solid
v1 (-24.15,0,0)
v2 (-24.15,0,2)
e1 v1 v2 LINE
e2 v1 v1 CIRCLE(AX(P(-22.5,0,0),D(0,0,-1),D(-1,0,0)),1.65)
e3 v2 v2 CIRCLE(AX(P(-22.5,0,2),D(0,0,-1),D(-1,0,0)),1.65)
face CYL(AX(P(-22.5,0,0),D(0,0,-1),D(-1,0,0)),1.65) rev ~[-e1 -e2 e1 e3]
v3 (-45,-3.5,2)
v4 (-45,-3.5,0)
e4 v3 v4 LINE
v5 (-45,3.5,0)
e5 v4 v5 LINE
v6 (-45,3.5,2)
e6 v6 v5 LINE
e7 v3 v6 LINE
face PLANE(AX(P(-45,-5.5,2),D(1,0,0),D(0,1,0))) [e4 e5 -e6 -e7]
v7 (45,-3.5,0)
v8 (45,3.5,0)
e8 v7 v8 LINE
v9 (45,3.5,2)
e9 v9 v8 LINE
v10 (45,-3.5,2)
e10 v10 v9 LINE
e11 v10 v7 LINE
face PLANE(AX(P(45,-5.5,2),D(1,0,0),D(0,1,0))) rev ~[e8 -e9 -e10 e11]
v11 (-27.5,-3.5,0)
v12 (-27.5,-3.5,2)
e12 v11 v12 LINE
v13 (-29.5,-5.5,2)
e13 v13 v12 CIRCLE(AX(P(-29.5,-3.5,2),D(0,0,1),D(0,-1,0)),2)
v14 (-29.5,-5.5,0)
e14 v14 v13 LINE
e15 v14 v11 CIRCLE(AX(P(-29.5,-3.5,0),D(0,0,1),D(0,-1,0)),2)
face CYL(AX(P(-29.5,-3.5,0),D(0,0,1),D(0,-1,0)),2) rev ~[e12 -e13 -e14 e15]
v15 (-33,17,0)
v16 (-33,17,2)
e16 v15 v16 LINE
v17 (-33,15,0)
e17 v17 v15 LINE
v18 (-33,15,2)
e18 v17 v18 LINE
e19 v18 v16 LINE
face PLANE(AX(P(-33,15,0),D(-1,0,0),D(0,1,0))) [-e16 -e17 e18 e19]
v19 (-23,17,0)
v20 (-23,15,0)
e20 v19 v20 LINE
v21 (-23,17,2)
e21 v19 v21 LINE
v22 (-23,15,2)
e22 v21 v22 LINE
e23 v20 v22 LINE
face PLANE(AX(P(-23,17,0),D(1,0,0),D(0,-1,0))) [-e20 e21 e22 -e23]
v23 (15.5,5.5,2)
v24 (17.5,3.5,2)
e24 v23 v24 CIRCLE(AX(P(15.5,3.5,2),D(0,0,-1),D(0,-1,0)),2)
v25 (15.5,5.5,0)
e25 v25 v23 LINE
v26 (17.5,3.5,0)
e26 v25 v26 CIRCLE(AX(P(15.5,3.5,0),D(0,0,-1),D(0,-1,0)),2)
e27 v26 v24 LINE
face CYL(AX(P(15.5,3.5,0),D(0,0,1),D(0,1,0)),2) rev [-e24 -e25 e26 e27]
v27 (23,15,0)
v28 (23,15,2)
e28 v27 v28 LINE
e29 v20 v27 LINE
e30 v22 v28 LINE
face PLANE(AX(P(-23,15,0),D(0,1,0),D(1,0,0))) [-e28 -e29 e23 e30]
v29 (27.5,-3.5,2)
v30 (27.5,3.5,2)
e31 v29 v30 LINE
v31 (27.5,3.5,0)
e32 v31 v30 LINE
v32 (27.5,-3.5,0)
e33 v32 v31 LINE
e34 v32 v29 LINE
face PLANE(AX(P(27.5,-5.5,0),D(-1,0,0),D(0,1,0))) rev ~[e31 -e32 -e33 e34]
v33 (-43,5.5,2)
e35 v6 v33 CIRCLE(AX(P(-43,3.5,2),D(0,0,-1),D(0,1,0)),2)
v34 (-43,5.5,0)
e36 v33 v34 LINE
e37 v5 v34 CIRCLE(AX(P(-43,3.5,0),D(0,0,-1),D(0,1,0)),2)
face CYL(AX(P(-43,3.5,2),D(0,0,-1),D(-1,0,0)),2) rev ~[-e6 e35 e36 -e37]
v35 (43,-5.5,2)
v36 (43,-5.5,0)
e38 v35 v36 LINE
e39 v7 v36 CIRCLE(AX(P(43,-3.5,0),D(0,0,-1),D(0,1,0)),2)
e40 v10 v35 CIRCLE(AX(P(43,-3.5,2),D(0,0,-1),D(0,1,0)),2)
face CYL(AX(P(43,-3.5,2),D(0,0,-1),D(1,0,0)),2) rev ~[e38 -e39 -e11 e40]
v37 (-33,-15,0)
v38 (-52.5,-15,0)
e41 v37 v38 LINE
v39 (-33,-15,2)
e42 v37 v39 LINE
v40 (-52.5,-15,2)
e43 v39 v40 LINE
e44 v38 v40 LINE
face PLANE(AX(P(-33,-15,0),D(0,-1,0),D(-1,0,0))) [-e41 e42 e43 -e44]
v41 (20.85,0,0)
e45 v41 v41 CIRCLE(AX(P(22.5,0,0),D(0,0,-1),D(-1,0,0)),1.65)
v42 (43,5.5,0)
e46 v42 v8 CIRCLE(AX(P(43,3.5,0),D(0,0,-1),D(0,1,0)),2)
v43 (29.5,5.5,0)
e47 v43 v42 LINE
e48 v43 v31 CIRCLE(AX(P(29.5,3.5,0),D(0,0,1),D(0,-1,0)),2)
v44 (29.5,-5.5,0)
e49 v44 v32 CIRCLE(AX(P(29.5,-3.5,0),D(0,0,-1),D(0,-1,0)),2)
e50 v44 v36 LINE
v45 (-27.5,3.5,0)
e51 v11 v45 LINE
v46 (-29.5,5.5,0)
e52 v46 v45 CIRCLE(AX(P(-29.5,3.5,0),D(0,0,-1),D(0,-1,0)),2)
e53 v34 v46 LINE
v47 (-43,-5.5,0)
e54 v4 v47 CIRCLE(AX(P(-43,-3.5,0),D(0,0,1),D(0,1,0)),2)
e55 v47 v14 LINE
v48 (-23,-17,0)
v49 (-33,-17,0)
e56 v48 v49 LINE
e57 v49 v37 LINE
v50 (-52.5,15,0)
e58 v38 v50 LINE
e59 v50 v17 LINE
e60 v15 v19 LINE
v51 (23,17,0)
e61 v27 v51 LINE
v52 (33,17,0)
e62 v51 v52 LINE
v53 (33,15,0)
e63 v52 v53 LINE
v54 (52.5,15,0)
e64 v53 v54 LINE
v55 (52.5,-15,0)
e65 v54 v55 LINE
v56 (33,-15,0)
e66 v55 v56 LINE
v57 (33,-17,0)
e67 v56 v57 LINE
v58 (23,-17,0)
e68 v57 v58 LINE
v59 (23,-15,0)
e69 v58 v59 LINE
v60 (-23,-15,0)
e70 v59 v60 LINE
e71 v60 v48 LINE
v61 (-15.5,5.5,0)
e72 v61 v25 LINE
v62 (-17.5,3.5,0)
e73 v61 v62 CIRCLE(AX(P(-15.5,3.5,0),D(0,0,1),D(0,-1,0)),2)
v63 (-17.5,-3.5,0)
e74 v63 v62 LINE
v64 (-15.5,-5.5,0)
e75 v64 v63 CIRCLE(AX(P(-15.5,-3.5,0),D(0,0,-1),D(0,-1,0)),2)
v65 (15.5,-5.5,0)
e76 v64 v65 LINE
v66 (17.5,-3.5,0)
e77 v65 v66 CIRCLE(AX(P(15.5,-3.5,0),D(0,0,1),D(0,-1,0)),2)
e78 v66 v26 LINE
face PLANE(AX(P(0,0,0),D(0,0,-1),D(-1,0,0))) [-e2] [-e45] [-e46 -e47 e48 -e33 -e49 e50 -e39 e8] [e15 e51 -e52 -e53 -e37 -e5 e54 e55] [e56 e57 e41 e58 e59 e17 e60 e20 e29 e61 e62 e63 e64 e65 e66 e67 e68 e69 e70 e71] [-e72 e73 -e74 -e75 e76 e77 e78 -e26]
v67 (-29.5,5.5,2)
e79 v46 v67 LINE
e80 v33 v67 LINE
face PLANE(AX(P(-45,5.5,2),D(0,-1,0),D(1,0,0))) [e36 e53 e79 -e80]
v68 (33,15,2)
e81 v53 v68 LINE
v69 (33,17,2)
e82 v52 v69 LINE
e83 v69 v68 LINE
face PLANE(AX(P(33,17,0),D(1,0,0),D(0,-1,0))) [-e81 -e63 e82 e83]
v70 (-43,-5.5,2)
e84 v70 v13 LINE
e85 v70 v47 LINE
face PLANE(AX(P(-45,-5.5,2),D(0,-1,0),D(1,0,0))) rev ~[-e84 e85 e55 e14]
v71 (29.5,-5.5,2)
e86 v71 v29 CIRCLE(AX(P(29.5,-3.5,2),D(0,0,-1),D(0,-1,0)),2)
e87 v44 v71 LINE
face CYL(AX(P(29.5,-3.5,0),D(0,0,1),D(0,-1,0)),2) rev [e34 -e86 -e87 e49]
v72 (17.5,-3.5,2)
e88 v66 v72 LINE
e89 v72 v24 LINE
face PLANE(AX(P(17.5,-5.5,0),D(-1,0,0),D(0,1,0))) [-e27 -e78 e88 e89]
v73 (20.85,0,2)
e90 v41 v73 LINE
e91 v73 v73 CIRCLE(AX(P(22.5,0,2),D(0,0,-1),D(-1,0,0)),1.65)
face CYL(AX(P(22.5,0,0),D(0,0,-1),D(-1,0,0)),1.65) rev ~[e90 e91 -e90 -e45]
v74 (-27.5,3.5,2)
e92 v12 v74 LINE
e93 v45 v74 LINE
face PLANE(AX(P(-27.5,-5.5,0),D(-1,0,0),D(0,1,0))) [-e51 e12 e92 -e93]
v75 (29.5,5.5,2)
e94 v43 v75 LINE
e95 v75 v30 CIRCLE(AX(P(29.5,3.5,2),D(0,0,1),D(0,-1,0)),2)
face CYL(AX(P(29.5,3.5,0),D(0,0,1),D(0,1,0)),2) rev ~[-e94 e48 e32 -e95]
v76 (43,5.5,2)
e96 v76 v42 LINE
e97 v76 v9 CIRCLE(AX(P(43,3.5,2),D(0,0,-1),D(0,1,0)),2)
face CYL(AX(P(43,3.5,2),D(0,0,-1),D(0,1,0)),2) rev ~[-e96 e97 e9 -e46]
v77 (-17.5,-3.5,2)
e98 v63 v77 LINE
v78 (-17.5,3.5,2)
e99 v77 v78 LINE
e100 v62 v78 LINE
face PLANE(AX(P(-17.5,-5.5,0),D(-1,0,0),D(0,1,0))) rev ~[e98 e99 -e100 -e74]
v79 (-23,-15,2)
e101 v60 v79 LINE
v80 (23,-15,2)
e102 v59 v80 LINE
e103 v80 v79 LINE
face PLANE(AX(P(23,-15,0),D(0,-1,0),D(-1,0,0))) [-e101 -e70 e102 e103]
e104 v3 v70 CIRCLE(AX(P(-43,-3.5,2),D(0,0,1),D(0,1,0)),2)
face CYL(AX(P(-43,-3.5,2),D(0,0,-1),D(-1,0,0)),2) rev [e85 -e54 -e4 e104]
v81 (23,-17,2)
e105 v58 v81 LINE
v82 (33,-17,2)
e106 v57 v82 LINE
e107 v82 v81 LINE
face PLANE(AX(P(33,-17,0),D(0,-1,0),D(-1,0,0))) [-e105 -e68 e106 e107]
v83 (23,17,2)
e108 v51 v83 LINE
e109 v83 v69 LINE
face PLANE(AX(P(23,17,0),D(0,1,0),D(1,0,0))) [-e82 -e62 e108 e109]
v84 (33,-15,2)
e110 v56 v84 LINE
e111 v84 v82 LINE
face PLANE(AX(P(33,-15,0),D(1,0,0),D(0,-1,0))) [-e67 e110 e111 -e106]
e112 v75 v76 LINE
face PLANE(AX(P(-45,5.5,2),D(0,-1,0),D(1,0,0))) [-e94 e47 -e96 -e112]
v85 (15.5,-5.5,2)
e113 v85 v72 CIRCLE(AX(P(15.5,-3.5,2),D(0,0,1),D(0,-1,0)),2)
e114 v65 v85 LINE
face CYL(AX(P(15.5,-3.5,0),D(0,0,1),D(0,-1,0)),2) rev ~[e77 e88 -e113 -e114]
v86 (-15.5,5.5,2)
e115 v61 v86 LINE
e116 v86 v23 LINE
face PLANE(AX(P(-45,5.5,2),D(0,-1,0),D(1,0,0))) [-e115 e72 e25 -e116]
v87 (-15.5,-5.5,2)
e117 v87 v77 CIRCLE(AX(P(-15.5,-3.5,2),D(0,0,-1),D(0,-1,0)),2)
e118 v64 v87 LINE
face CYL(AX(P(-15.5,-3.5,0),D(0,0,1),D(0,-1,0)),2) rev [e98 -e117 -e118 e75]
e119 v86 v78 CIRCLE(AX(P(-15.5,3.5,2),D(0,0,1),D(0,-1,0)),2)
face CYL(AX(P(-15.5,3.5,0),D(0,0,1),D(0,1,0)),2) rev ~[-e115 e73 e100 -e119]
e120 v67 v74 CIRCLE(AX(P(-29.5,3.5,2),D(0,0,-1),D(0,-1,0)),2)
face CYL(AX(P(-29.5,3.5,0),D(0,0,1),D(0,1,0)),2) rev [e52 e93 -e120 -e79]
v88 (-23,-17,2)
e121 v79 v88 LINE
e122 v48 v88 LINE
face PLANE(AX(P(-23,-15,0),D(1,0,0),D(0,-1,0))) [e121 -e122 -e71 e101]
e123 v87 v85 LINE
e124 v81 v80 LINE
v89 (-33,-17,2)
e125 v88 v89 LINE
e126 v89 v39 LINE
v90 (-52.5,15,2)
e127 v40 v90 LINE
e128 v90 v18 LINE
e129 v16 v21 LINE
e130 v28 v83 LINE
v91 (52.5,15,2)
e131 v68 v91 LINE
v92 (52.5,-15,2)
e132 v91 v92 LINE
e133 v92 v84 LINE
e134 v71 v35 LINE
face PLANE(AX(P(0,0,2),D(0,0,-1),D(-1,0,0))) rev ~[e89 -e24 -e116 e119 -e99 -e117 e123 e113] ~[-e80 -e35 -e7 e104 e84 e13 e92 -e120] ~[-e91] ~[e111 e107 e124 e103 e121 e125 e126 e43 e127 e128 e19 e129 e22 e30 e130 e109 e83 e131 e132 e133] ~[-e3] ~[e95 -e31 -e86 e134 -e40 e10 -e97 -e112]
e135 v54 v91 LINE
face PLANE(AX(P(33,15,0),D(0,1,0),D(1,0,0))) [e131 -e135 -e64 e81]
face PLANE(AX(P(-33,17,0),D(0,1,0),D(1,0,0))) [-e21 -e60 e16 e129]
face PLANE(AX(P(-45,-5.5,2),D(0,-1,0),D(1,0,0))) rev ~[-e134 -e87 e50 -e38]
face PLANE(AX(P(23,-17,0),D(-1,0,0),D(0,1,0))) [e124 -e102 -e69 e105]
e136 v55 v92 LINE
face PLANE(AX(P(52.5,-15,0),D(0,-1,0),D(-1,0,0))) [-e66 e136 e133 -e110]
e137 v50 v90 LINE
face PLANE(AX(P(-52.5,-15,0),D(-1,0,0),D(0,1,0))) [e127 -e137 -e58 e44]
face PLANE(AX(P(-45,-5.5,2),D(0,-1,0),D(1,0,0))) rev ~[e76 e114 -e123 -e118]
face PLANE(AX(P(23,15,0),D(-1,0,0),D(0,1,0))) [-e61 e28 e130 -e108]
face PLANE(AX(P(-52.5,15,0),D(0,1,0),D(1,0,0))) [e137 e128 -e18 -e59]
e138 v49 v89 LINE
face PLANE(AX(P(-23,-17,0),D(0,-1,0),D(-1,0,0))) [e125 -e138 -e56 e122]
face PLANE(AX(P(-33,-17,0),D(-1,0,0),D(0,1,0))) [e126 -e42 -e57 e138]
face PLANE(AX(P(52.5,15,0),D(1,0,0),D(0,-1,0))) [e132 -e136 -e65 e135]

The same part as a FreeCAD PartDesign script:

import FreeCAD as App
import Part
import Sketcher


def edges_at(feature, points):
    """Names of the edges that pass closest to the given points."""
    edges = feature.Shape.Edges
    near = lambda p: min(range(len(edges)), key=lambda i: edges[i].distToShape(Part.Vertex(*p))[0])
    return sorted({f"Edge{near(p) + 1}" for p in points})


def add_polygon(sketch, points):
    """Adds a closed chain of lines whose ends are joined by coincident constraints."""
    first, n = sketch.GeometryCount, len(points)
    for a, b in zip(points, points[1:] + points[:1]):
        sketch.addGeometry(Part.LineSegment(App.Vector(*a, 0), App.Vector(*b, 0)), False)
    for i in range(n):
        sketch.addConstraint(Sketcher.Constraint("Coincident", first + i, 2, first + (i + 1) % n, 1))

doc = App.newDocument("Part")
body = doc.addObject("PartDesign::Body", "Body")

# Sketch on XY plane
sketch1 = body.newObject("Sketcher::SketchObject", "Sketch")
sketch1.AttachmentSupport = (doc.getObject("XY_Plane"), [""])
sketch1.MapMode = "FlatFace"
add_polygon(sketch1, [(-52.5, -15), (-33, -15), (-33, -17), (-23, -17), (-23, -15), (23, -15), (23, -17), (33, -17), (33, -15), (52.5, -15), (52.5, 15), (33, 15), (33, 17), (23, 17), (23, 15), (-23, 15), (-23, 17), (-33, 17), (-33, 15), (-52.5, 15)])  # lines 0-19
sketch1.addConstraint(Sketcher.Constraint("Horizontal", 0))
sketch1.addConstraint(Sketcher.Constraint("Vertical", 1))
sketch1.addConstraint(Sketcher.Constraint("Horizontal", 2))
sketch1.addConstraint(Sketcher.Constraint("Vertical", 3))
sketch1.addConstraint(Sketcher.Constraint("Horizontal", 4))
sketch1.addConstraint(Sketcher.Constraint("Vertical", 5))
sketch1.addConstraint(Sketcher.Constraint("Horizontal", 6))
sketch1.addConstraint(Sketcher.Constraint("Vertical", 7))
sketch1.addConstraint(Sketcher.Constraint("Horizontal", 8))
sketch1.addConstraint(Sketcher.Constraint("Vertical", 9))
sketch1.addConstraint(Sketcher.Constraint("Horizontal", 10))
sketch1.addConstraint(Sketcher.Constraint("Vertical", 11))
sketch1.addConstraint(Sketcher.Constraint("Horizontal", 12))
sketch1.addConstraint(Sketcher.Constraint("Vertical", 13))
sketch1.addConstraint(Sketcher.Constraint("Horizontal", 14))
sketch1.addConstraint(Sketcher.Constraint("Vertical", 15))
sketch1.addConstraint(Sketcher.Constraint("Horizontal", 16))
sketch1.addConstraint(Sketcher.Constraint("Vertical", 17))
sketch1.addConstraint(Sketcher.Constraint("Horizontal", 18))
sketch1.addConstraint(Sketcher.Constraint("Vertical", 19))
sketch1.addConstraint(Sketcher.Constraint("Symmetric", 0, 2, 10, 2, -1, 1))
sketch1.addConstraint(Sketcher.Constraint("Symmetric", 2, 2, 12, 2, -1, 1))
sketch1.addConstraint(Sketcher.Constraint("Symmetric", 4, 2, 14, 2, -1, 1))
sketch1.addConstraint(Sketcher.Constraint("Symmetric", 6, 2, 16, 2, -1, 1))
sketch1.addConstraint(Sketcher.Constraint("Symmetric", 8, 2, 18, 2, -1, 1))
sketch1.addConstraint(Sketcher.Constraint("Symmetric", 2, 2, 5, 2, -2))
sketch1.addConstraint(Sketcher.Constraint("Symmetric", 0, 2, 7, 2, -2))
sketch1.addConstraint(Sketcher.Constraint("Horizontal", 0, 2, 3, 2))
sketch1.addConstraint(Sketcher.Constraint("DistanceX", 2, 1, 2, 2, 10.0))
sketch1.addConstraint(Sketcher.Constraint("DistanceX", 4, 1, 4, 2, 46.0))
sketch1.addConstraint(Sketcher.Constraint("DistanceY", 1, 2, 1, 1, 2.0))
sketch1.addConstraint(Sketcher.Constraint("DistanceY", 9, 1, 9, 2, 30.0))
sketch1.addConstraint(Sketcher.Constraint("DistanceX", 0, 1, 0, 2, 19.5))
pad1 = body.newObject("PartDesign::Pad", "Pad")
pad1.Profile = sketch1
pad1.Length = 2

# Sketch on XY plane
sketch2 = body.newObject("Sketcher::SketchObject", "Sketch001")
sketch2.AttachmentSupport = (doc.getObject("XY_Plane"), [""])
sketch2.MapMode = "FlatFace"
sketch2.AttachmentOffset = App.Placement(App.Vector(0, 0, 2), App.Rotation())
add_polygon(sketch2, [(-45, 6), (-45, -6), (45, -6), (45, 6)])  # lines 0-3
sketch2.addConstraint(Sketcher.Constraint("Vertical", 0))
sketch2.addConstraint(Sketcher.Constraint("Horizontal", 1))
sketch2.addConstraint(Sketcher.Constraint("Vertical", 2))
sketch2.addConstraint(Sketcher.Constraint("Horizontal", 3))
sketch2.addConstraint(Sketcher.Constraint("Symmetric", 0, 2, 2, 2, -1, 1))
sketch2.addConstraint(Sketcher.Constraint("DistanceX", 1, 1, 1, 2, 90.0))
sketch2.addConstraint(Sketcher.Constraint("DistanceY", 0, 2, 0, 1, 11.0))
pocket1 = body.newObject("PartDesign::Pocket", "Pocket")
pocket1.Profile = sketch2
pocket1.Length = 2

# Sketch on XY plane
sketch3 = body.newObject("Sketcher::SketchObject", "Sketch002")
sketch3.AttachmentSupport = (doc.getObject("XY_Plane"), [""])
sketch3.MapMode = "FlatFace"
add_polygon(sketch3, [(27.5, 5.5), (27.5, -5.5), (17.5, -5.5), (17.5, 5.5)])  # lines 0-3
sketch3.addGeometry(Part.Circle(App.Vector(22.5, 0, 0), App.Vector(0, 0, 1), 1.6), False)  # 4
add_polygon(sketch3, [(-17.5, 5.5), (-17.5, -5.5), (-27.5, -5.5), (-27.5, 5.5)])  # lines 5-8
sketch3.addGeometry(Part.Circle(App.Vector(-22.5, 0, 0), App.Vector(0, 0, 1), 1.6), False)  # 9
sketch3.addConstraint(Sketcher.Constraint("Vertical", 0))
sketch3.addConstraint(Sketcher.Constraint("Horizontal", 1))
sketch3.addConstraint(Sketcher.Constraint("Vertical", 2))
sketch3.addConstraint(Sketcher.Constraint("Horizontal", 3))
sketch3.addConstraint(Sketcher.Constraint("Vertical", 5))
sketch3.addConstraint(Sketcher.Constraint("Horizontal", 6))
sketch3.addConstraint(Sketcher.Constraint("Vertical", 7))
sketch3.addConstraint(Sketcher.Constraint("Horizontal", 8))
sketch3.addConstraint(Sketcher.Constraint("Equal", 4, 9))
sketch3.addConstraint(Sketcher.Constraint("Symmetric", 4, 3, 9, 3, -1, 1))
sketch3.addConstraint(Sketcher.Constraint("Symmetric", 2, 2, 5, 2, -1, 1))
sketch3.addConstraint(Sketcher.Constraint("Symmetric", 0, 2, 7, 2, -1, 1))
sketch3.addConstraint(Sketcher.Constraint("PointOnObject", 4, 3, -1))
sketch3.addConstraint(Sketcher.Constraint("Horizontal", 1, 2, 5, 2))
sketch3.addConstraint(Sketcher.Constraint("Diameter", 4, 3.3))
sketch3.addConstraint(Sketcher.Constraint("DistanceX", 1, 2, 1, 1, 10.0))
sketch3.addConstraint(Sketcher.Constraint("DistanceY", 0, 2, 0, 1, 11.0))
sketch3.addConstraint(Sketcher.Constraint("DistanceX", 9, 3, 4, 3, 45.0))
sketch3.addConstraint(Sketcher.Constraint("DistanceX", 4, 3, 0, 2, 5.0))
pad2 = body.newObject("PartDesign::Pad", "Pad001")
pad2.Profile = sketch3
pad2.Length = 2
doc.recompute()

fillet = body.newObject("PartDesign::Fillet", "Fillet")
fillet.Base = (pad2, edges_at(pad2, [
    (-45, -5.5, 1),
    (-45, 5.5, 1),
    (45, 5.5, 1),
    (45, -5.5, 1),
    (17.5, -5.5, 1),
    (17.5, 5.5, 1),
    (27.5, 5.5, 1),
    (27.5, -5.5, 1),
    (-27.5, -5.5, 1),
    (-27.5, 5.5, 1),
    (-17.5, 5.5, 1),
    (-17.5, -5.5, 1),
]))
fillet.Radius = 2

doc.recompute()
